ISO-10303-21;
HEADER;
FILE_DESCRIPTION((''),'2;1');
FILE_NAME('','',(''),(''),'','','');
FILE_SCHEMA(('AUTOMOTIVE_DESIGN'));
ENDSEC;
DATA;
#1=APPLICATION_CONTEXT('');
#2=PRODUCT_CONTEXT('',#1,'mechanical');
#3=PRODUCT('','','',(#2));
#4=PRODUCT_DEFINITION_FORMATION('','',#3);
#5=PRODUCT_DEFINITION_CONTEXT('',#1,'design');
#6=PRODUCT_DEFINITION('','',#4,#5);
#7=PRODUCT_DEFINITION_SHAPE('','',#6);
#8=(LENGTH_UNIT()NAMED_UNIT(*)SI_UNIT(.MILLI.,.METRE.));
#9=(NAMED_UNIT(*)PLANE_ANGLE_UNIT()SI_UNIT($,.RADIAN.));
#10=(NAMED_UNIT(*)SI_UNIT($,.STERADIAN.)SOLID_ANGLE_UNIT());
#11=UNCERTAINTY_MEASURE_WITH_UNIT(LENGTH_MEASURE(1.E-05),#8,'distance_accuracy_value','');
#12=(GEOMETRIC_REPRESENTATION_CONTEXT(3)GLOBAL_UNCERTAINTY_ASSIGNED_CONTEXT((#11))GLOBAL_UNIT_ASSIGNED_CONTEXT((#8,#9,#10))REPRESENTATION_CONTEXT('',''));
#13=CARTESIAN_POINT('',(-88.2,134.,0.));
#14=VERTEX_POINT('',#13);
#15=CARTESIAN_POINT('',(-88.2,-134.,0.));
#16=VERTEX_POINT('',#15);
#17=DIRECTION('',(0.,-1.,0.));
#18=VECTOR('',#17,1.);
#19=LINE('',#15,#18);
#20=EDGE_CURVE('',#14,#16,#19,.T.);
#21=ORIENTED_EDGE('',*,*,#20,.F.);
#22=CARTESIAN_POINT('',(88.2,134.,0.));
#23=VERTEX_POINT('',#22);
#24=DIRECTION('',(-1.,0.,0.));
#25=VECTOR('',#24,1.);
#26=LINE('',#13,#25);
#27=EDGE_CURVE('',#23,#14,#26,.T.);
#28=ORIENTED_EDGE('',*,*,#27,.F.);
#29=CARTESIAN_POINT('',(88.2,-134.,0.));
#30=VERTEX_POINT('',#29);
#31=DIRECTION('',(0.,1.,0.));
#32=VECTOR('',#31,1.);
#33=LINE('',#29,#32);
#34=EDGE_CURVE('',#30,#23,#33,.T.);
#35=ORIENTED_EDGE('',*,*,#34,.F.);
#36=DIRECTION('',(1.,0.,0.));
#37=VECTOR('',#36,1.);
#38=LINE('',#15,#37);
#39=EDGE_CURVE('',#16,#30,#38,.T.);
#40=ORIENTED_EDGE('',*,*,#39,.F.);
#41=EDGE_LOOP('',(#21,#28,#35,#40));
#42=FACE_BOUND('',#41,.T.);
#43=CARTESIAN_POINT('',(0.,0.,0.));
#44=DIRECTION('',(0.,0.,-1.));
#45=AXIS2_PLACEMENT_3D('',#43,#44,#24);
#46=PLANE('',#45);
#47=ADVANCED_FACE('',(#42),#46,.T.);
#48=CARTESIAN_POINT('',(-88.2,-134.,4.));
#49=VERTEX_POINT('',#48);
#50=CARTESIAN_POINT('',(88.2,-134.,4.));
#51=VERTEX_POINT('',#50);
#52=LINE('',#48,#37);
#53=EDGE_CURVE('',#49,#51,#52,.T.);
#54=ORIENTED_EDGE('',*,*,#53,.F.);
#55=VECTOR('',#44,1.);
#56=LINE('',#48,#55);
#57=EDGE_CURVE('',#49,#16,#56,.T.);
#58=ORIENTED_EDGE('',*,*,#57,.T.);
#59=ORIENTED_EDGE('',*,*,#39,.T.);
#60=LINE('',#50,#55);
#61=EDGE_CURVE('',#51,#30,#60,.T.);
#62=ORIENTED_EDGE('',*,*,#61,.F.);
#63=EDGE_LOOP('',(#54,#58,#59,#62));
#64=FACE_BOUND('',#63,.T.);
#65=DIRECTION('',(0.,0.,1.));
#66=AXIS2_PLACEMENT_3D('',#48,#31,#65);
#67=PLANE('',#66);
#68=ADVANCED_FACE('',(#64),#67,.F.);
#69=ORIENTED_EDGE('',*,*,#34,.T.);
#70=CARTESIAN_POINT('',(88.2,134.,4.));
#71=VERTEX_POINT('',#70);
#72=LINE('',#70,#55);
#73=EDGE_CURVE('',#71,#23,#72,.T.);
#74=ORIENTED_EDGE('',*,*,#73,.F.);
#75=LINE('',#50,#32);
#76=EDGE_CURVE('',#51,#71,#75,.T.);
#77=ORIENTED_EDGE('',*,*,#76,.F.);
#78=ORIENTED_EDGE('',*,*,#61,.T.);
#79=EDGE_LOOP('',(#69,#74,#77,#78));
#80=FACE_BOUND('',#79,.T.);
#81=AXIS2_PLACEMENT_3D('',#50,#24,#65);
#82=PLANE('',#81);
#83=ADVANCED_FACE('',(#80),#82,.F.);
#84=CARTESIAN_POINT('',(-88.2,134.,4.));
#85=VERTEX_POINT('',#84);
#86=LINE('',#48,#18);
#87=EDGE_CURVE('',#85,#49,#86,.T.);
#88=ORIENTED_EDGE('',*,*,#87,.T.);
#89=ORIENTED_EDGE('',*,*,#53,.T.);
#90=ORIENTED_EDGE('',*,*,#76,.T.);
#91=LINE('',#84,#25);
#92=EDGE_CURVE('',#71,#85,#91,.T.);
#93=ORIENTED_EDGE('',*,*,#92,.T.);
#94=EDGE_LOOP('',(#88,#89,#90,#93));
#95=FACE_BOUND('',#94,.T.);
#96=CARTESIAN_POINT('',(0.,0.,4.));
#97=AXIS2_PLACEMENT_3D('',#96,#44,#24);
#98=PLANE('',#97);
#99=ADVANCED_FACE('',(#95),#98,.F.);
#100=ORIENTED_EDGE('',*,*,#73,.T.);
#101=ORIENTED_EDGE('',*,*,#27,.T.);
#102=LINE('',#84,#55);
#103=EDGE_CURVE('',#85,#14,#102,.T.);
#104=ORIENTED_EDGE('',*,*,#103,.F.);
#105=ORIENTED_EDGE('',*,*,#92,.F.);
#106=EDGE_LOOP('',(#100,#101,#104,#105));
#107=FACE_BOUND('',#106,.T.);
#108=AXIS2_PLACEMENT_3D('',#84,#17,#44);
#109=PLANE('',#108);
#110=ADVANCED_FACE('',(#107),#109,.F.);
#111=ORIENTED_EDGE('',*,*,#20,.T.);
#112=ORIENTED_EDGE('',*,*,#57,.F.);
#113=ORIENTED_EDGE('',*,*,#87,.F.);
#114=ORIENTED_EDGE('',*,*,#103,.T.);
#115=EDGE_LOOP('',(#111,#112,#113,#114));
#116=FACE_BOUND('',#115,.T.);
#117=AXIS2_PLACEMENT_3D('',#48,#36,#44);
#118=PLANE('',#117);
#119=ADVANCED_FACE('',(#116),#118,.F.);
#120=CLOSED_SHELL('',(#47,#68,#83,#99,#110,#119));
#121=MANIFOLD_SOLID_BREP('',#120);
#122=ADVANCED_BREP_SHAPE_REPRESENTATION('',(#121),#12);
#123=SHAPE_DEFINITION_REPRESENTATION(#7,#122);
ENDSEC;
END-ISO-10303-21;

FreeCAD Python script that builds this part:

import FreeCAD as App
import Part
import Sketcher
Q = App.Units.Quantity

doc = App.newDocument("Part")
body = doc.addObject("PartDesign::Body", "Body")

sketch1 = body.newObject("Sketcher::SketchObject", "Sketch")
sketch1.AttachmentSupport = (doc.getObject("XY_Plane"), [""])
sketch1.MapMode = "FlatFace"
sketch1.addGeometry(Part.LineSegment(App.Vector(-88, 134, 0), App.Vector(-88, -134, 0)), False)
sketch1.addGeometry(Part.LineSegment(App.Vector(-88, -134, 0), App.Vector(88, -134, 0)), False)
sketch1.addGeometry(Part.LineSegment(App.Vector(88, -134, 0), App.Vector(88, 134, 0)), False)
sketch1.addGeometry(Part.LineSegment(App.Vector(88, 134, 0), App.Vector(-88, 134, 0)), False)
sketch1.addConstraint(Sketcher.Constraint("Coincident", 0, 2, 1, 1))
sketch1.addConstraint(Sketcher.Constraint("Coincident", 1, 2, 2, 1))
sketch1.addConstraint(Sketcher.Constraint("Coincident", 2, 2, 3, 1))
sketch1.addConstraint(Sketcher.Constraint("Coincident", 3, 2, 0, 1))
sketch1.addConstraint(Sketcher.Constraint("Vertical", 0))
sketch1.addConstraint(Sketcher.Constraint("Horizontal", 1))
sketch1.addConstraint(Sketcher.Constraint("Vertical", 2))
sketch1.addConstraint(Sketcher.Constraint("Horizontal", 3))
sketch1.addConstraint(Sketcher.Constraint("Symmetric", 0, 2, 2, 2, -1, 1))
sketch1.addConstraint(Sketcher.Constraint("DistanceY", 0, 2, 0, 1, Q("268 mm")))
sketch1.addConstraint(Sketcher.Constraint("DistanceX", 1, 1, 1, 2, Q("176.4 mm")))
pad1 = body.newObject("PartDesign::Pad", "Pad")
pad1.Profile = sketch1
pad1.Length = 4

doc.recompute()
